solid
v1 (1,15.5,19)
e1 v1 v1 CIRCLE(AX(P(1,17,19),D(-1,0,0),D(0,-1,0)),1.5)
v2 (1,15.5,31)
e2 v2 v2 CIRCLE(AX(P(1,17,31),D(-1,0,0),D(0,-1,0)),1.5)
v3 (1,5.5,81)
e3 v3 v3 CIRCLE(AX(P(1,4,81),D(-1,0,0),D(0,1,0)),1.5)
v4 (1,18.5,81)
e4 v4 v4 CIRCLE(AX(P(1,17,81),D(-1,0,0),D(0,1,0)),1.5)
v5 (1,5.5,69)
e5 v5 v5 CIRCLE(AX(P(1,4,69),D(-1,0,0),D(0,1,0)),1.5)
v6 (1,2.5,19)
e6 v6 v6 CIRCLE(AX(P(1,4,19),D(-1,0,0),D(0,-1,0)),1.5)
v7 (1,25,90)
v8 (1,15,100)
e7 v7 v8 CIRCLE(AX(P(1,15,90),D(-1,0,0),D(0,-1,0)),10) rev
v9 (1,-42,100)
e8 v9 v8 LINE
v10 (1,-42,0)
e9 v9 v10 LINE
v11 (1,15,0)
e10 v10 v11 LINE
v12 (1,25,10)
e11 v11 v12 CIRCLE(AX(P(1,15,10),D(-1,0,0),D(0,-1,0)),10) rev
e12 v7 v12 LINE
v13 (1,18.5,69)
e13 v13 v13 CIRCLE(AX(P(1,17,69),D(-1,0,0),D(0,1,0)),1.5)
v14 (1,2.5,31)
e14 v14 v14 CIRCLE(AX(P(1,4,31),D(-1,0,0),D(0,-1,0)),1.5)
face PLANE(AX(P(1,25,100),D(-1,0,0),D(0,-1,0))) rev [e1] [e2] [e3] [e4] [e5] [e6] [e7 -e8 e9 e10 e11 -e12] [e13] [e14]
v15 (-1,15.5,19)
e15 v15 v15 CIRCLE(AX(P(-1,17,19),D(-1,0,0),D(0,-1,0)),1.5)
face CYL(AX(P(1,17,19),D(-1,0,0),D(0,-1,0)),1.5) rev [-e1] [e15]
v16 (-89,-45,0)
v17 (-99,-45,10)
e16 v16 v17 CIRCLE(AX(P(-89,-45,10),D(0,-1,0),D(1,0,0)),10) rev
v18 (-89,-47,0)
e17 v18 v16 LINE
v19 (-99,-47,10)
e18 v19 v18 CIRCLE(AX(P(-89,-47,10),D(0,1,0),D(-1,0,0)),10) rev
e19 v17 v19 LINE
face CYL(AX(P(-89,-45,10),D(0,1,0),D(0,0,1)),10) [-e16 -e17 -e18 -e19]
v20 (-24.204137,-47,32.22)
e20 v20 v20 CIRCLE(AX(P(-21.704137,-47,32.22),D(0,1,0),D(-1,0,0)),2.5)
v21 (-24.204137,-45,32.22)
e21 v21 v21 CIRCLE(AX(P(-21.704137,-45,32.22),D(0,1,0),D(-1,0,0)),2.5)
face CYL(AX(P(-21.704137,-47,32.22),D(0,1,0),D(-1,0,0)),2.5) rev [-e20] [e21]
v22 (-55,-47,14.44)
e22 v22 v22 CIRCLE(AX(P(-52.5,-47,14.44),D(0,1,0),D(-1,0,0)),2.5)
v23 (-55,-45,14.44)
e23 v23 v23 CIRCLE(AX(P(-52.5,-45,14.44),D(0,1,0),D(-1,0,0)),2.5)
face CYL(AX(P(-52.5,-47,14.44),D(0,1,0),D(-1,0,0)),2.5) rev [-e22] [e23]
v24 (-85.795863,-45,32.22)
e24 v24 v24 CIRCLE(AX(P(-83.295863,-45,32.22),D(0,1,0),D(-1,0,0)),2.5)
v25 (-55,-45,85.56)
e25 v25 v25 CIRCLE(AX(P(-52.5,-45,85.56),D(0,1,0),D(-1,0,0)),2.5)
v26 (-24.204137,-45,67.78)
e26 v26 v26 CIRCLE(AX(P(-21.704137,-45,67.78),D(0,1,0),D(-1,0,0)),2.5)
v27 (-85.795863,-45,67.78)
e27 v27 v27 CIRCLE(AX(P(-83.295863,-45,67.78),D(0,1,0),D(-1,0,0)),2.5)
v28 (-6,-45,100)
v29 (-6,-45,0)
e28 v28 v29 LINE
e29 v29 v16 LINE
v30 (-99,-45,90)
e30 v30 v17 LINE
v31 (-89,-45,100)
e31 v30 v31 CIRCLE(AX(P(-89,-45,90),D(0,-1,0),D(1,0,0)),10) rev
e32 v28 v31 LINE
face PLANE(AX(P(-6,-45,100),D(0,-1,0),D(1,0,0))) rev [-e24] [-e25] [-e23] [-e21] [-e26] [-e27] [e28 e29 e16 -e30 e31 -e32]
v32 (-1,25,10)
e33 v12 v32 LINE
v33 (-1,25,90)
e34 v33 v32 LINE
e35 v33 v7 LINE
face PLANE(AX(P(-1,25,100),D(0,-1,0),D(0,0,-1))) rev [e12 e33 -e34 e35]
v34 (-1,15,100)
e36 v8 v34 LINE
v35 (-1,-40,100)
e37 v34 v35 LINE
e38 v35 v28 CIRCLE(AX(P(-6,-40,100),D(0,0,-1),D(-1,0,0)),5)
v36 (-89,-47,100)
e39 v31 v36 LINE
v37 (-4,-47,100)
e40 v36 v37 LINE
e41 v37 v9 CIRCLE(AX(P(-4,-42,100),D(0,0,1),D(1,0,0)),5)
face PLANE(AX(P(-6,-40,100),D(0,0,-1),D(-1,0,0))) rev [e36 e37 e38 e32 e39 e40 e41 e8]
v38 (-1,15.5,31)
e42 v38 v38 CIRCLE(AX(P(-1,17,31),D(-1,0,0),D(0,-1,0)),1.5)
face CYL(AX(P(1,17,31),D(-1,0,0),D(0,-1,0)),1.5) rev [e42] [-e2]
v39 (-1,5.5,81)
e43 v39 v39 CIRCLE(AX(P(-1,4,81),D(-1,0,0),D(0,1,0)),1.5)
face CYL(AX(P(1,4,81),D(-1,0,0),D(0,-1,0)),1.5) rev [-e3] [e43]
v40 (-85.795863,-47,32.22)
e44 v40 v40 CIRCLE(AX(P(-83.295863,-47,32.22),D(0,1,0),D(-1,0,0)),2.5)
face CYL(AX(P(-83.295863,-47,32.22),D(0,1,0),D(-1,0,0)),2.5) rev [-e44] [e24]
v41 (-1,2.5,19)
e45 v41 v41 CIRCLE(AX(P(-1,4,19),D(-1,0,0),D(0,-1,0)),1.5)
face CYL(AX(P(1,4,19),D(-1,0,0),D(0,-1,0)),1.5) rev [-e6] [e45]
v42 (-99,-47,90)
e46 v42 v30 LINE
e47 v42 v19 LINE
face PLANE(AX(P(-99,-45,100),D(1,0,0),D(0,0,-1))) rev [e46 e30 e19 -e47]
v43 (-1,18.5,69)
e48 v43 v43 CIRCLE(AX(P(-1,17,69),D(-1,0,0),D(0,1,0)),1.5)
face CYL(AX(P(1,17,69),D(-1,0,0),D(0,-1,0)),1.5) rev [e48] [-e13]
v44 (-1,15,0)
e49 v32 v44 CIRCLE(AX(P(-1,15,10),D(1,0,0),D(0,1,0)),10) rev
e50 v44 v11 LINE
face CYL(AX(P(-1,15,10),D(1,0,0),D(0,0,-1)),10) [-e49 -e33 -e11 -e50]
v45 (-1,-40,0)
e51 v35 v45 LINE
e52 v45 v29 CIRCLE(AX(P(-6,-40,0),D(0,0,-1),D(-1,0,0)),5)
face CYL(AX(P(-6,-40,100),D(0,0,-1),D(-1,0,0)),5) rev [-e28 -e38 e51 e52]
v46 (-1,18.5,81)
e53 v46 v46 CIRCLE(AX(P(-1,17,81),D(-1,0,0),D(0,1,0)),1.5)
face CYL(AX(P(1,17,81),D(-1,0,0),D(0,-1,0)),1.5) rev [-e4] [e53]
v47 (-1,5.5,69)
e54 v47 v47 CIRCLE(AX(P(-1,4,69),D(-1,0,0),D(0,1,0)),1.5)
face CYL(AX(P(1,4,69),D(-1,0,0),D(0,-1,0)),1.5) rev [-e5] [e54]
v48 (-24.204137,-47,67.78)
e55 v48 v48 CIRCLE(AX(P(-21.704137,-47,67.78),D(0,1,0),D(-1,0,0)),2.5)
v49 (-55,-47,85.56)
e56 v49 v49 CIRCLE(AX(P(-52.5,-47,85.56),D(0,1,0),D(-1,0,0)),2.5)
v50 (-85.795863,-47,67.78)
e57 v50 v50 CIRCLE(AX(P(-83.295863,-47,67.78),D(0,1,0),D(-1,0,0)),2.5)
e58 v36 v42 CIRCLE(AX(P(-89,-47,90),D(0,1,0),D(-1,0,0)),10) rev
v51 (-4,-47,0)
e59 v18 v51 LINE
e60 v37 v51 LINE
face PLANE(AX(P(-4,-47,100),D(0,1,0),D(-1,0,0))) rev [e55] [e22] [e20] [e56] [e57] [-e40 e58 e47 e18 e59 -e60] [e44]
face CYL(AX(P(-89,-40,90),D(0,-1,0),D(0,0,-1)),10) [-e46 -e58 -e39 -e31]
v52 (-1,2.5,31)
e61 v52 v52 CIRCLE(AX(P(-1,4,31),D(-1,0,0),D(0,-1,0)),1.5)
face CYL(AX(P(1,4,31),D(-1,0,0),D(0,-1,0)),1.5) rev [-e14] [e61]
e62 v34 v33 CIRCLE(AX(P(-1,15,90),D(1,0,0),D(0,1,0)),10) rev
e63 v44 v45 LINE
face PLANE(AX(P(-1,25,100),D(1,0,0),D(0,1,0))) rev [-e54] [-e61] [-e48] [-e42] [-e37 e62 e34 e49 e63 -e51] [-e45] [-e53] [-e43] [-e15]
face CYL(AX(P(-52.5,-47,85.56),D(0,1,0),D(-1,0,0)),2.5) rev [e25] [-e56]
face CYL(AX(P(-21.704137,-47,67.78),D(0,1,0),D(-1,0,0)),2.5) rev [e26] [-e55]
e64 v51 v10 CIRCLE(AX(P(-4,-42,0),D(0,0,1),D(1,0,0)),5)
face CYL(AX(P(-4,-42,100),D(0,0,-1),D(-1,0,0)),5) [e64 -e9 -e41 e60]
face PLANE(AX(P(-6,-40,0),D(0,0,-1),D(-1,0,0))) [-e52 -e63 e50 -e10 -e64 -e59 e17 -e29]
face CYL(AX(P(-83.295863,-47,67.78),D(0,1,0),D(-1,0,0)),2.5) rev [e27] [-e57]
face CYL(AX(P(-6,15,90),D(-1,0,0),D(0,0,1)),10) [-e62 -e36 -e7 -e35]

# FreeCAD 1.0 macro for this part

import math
import FreeCAD as App
import Part
import Sketcher


def edges_at(feature, points):
    """Names of the edges that pass closest to the given points."""
    edges = feature.Shape.Edges
    near = lambda p: min(range(len(edges)), key=lambda i: edges[i].distToShape(Part.Vertex(*p))[0])
    return sorted({f"Edge{near(p) + 1}" for p in points})

doc = App.newDocument("Part")
body = doc.addObject("PartDesign::Body", "Body")

# Sketch on XY plane
sketch1 = doc.addObject("Sketcher::SketchObject", "Sketch")
body.addObject(sketch1)
sketch1.AttachmentSupport = (doc.XY_Plane, [""])
sketch1.MapMode = "FlatFace"
sketch1.addGeometry(Part.LineSegment(App.Vector(1, 25, 0), App.Vector(-1, 25, 0)), False)
sketch1.addGeometry(Part.LineSegment(App.Vector(-1, 25, 0), App.Vector(-1, -40, 0)), False)
sketch1.addGeometry(Part.ArcOfCircle(Part.Circle(App.Vector(-6, -40, 0), App.Vector(0, 0, 1), 5), math.radians(-90), math.radians(0)), False)
sketch1.addGeometry(Part.LineSegment(App.Vector(-6, -45, 0), App.Vector(-99, -45, 0)), False)
sketch1.addGeometry(Part.LineSegment(App.Vector(-99, -45, 0), App.Vector(-99, -47, 0)), False)
sketch1.addGeometry(Part.LineSegment(App.Vector(-99, -47, 0), App.Vector(-4, -47, 0)), False)
sketch1.addGeometry(Part.ArcOfCircle(Part.Circle(App.Vector(-4, -42, 0), App.Vector(0, 0, 1), 5), math.radians(-90), math.radians(0)), False)
sketch1.addGeometry(Part.LineSegment(App.Vector(1, -42, 0), App.Vector(1, 25, 0)), False)
sketch1.addConstraint(Sketcher.Constraint("Coincident", 0, 2, 1, 1))
sketch1.addConstraint(Sketcher.Constraint("Tangent", 1, 2, 2, 2))
sketch1.addConstraint(Sketcher.Constraint("Tangent", 2, 1, 3, 1))
sketch1.addConstraint(Sketcher.Constraint("Coincident", 3, 2, 4, 1))
sketch1.addConstraint(Sketcher.Constraint("Coincident", 4, 2, 5, 1))
sketch1.addConstraint(Sketcher.Constraint("Tangent", 5, 2, 6, 1))
sketch1.addConstraint(Sketcher.Constraint("Tangent", 6, 2, 7, 1))
sketch1.addConstraint(Sketcher.Constraint("Coincident", 7, 2, 0, 1))
sketch1.addConstraint(Sketcher.Constraint("Horizontal", 0))
sketch1.addConstraint(Sketcher.Constraint("Vertical", 1))
sketch1.addConstraint(Sketcher.Constraint("Horizontal", 3))
sketch1.addConstraint(Sketcher.Constraint("Vertical", 4))
sketch1.addConstraint(Sketcher.Constraint("Horizontal", 5))
sketch1.addConstraint(Sketcher.Constraint("Vertical", 7))
sketch1.addConstraint(Sketcher.Constraint("Equal", 2, 6))
sketch1.addConstraint(Sketcher.Constraint("Equal", 0, 4))
sketch1.addConstraint(Sketcher.Constraint("Radius", 2, 5.0))
sketch1.addConstraint(Sketcher.Constraint("DistanceX", 0, 2, 0, 1, 2.0))
sketch1.addConstraint(Sketcher.Constraint("DistanceX", 3, 2, 3, 1, 93.0))
sketch1.addConstraint(Sketcher.Constraint("DistanceY", 1, 2, 1, 1, 65.0))
sketch1.addConstraint(Sketcher.Constraint("DistanceX", 2, 3, -1, 1, 6.0))
sketch1.addConstraint(Sketcher.Constraint("DistanceY", 2, 3, -1, 1, 40.0))
pad1 = doc.addObject("PartDesign::Pad", "Pad")
body.addObject(pad1)
pad1.Profile = sketch1
pad1.Length = 100

# Sketch on YZ plane
sketch2 = doc.addObject("Sketcher::SketchObject", "Sketch001")
body.addObject(sketch2)
sketch2.AttachmentSupport = (doc.YZ_Plane, [""])
sketch2.MapMode = "FlatFace"
sketch2.AttachmentOffset = App.Placement(App.Vector(0, 0, -1), App.Rotation())
sketch2.addGeometry(Part.Circle(App.Vector(4, 19, 0), App.Vector(0, 0, 1), 1.5), False)
sketch2.addGeometry(Part.Circle(App.Vector(4, 31, 0), App.Vector(0, 0, 1), 1.5), False)
sketch2.addGeometry(Part.Circle(App.Vector(17, 31, 0), App.Vector(0, 0, 1), 1.5), False)
sketch2.addGeometry(Part.Circle(App.Vector(17, 19, 0), App.Vector(0, 0, 1), 1.5), False)
sketch2.addGeometry(Part.Circle(App.Vector(17, 81, 0), App.Vector(0, 0, 1), 1.5), False)
sketch2.addGeometry(Part.Circle(App.Vector(17, 69, 0), App.Vector(0, 0, 1), 1.5), False)
sketch2.addGeometry(Part.Circle(App.Vector(4, 69, 0), App.Vector(0, 0, 1), 1.5), False)
sketch2.addGeometry(Part.Circle(App.Vector(4, 81, 0), App.Vector(0, 0, 1), 1.5), False)
sketch2.addConstraint(Sketcher.Constraint("Equal", 0, 1))
sketch2.addConstraint(Sketcher.Constraint("Equal", 1, 2))
sketch2.addConstraint(Sketcher.Constraint("Equal", 2, 3))
sketch2.addConstraint(Sketcher.Constraint("Equal", 3, 4))
sketch2.addConstraint(Sketcher.Constraint("Equal", 4, 5))
sketch2.addConstraint(Sketcher.Constraint("Equal", 5, 6))
sketch2.addConstraint(Sketcher.Constraint("Equal", 6, 7))
sketch2.addConstraint(Sketcher.Constraint("Horizontal", 1, 3, 2, 3))
sketch2.addConstraint(Sketcher.Constraint("Horizontal", 0, 3, 3, 3))
sketch2.addConstraint(Sketcher.Constraint("Horizontal", 5, 3, 6, 3))
sketch2.addConstraint(Sketcher.Constraint("Horizontal", 4, 3, 7, 3))
sketch2.addConstraint(Sketcher.Constraint("Vertical", 0, 3, 1, 3))
sketch2.addConstraint(Sketcher.Constraint("Vertical", 2, 3, 3, 3))
sketch2.addConstraint(Sketcher.Constraint("Vertical", 3, 3, 4, 3))
sketch2.addConstraint(Sketcher.Constraint("Vertical", 4, 3, 5, 3))
sketch2.addConstraint(Sketcher.Constraint("Vertical", 1, 3, 6, 3))
sketch2.addConstraint(Sketcher.Constraint("Vertical", 6, 3, 7, 3))
sketch2.addConstraint(Sketcher.Constraint("Diameter", 0, 3.0))
sketch2.addConstraint(Sketcher.Constraint("DistanceX", -1, 1, 0, 3, 4.0))
sketch2.addConstraint(Sketcher.Constraint("DistanceY", -1, 1, 0, 3, 19.0))
sketch2.addConstraint(Sketcher.Constraint("DistanceY", -1, 1, 1, 3, 31.0))
sketch2.addConstraint(Sketcher.Constraint("DistanceX", -1, 1, 2, 3, 17.0))
sketch2.addConstraint(Sketcher.Constraint("DistanceY", -1, 1, 4, 3, 81.0))
sketch2.addConstraint(Sketcher.Constraint("DistanceY", -1, 1, 5, 3, 69.0))
pocket1 = doc.addObject("PartDesign::Pocket", "Pocket")
body.addObject(pocket1)
pocket1.Profile = sketch2
pocket1.Type = "ThroughAll"
pocket1.Reversed = True

# Sketch on XZ plane
sketch3 = doc.addObject("Sketcher::SketchObject", "Sketch002")
body.addObject(sketch3)
sketch3.AttachmentSupport = (doc.XZ_Plane, [""])
sketch3.MapMode = "FlatFace"
sketch3.AttachmentOffset = App.Placement(App.Vector(0, 0, 45), App.Rotation())
sketch3.addGeometry(Part.Circle(App.Vector(-21.704137, 32.22, 0), App.Vector(0, 0, 1), 2.5), False)
sketch3.addGeometry(Part.Circle(App.Vector(-21.704137, 67.78, 0), App.Vector(0, 0, 1), 2.5), False)
sketch3.addGeometry(Part.Circle(App.Vector(-52.5, 85.56, 0), App.Vector(0, 0, 1), 2.5), False)
sketch3.addGeometry(Part.Circle(App.Vector(-83.295863, 67.78, 0), App.Vector(0, 0, 1), 2.5), False)
sketch3.addGeometry(Part.Circle(App.Vector(-83.295863, 32.22, 0), App.Vector(0, 0, 1), 2.5), False)
sketch3.addGeometry(Part.Circle(App.Vector(-52.5, 14.44, 0), App.Vector(0, 0, 1), 2.5), False)
sketch3.addConstraint(Sketcher.Constraint("Equal", 0, 1))
sketch3.addConstraint(Sketcher.Constraint("Equal", 1, 2))
sketch3.addConstraint(Sketcher.Constraint("Equal", 2, 3))
sketch3.addConstraint(Sketcher.Constraint("Equal", 3, 4))
sketch3.addConstraint(Sketcher.Constraint("Equal", 4, 5))
sketch3.addConstraint(Sketcher.Constraint("Horizontal", 1, 3, 3, 3))
sketch3.addConstraint(Sketcher.Constraint("Horizontal", 0, 3, 4, 3))
sketch3.addConstraint(Sketcher.Constraint("Vertical", 0, 3, 1, 3))
sketch3.addConstraint(Sketcher.Constraint("Vertical", 3, 3, 4, 3))
sketch3.addConstraint(Sketcher.Constraint("Vertical", 2, 3, 5, 3))
sketch3.addConstraint(Sketcher.Constraint("Diameter", 0, 5.0))
sketch3.addConstraint(Sketcher.Constraint("DistanceX", 2, 3, -1, 1, 52.5))
sketch3.addConstraint(Sketcher.Constraint("DistanceY", -1, 1, 0, 3, 32.22))
sketch3.addConstraint(Sketcher.Constraint("DistanceY", -1, 1, 1, 3, 67.78))
sketch3.addConstraint(Sketcher.Constraint("DistanceY", -1, 1, 2, 3, 85.56))
sketch3.addConstraint(Sketcher.Constraint("DistanceY", -1, 1, 5, 3, 14.44))
sketch3.addConstraint(Sketcher.Constraint("DistanceX", 0, 3, -1, 1, 21.704137))
sketch3.addConstraint(Sketcher.Constraint("DistanceX", 3, 3, -1, 1, 83.295863))
pocket2 = doc.addObject("PartDesign::Pocket", "Pocket001")
body.addObject(pocket2)
pocket2.Profile = sketch3
pocket2.Type = "ThroughAll"
pocket2.Reversed = True
doc.recompute()

fillet = doc.addObject("PartDesign::Fillet", "Fillet")
body.addObject(fillet)
fillet.Base = (pocket2, edges_at(pocket2, [
    (-99, -46, 0),
    (-99, -46, 100),
    (0, 25, 100),
    (0, 25, 0),
]))
fillet.Radius = 10

doc.recompute()
